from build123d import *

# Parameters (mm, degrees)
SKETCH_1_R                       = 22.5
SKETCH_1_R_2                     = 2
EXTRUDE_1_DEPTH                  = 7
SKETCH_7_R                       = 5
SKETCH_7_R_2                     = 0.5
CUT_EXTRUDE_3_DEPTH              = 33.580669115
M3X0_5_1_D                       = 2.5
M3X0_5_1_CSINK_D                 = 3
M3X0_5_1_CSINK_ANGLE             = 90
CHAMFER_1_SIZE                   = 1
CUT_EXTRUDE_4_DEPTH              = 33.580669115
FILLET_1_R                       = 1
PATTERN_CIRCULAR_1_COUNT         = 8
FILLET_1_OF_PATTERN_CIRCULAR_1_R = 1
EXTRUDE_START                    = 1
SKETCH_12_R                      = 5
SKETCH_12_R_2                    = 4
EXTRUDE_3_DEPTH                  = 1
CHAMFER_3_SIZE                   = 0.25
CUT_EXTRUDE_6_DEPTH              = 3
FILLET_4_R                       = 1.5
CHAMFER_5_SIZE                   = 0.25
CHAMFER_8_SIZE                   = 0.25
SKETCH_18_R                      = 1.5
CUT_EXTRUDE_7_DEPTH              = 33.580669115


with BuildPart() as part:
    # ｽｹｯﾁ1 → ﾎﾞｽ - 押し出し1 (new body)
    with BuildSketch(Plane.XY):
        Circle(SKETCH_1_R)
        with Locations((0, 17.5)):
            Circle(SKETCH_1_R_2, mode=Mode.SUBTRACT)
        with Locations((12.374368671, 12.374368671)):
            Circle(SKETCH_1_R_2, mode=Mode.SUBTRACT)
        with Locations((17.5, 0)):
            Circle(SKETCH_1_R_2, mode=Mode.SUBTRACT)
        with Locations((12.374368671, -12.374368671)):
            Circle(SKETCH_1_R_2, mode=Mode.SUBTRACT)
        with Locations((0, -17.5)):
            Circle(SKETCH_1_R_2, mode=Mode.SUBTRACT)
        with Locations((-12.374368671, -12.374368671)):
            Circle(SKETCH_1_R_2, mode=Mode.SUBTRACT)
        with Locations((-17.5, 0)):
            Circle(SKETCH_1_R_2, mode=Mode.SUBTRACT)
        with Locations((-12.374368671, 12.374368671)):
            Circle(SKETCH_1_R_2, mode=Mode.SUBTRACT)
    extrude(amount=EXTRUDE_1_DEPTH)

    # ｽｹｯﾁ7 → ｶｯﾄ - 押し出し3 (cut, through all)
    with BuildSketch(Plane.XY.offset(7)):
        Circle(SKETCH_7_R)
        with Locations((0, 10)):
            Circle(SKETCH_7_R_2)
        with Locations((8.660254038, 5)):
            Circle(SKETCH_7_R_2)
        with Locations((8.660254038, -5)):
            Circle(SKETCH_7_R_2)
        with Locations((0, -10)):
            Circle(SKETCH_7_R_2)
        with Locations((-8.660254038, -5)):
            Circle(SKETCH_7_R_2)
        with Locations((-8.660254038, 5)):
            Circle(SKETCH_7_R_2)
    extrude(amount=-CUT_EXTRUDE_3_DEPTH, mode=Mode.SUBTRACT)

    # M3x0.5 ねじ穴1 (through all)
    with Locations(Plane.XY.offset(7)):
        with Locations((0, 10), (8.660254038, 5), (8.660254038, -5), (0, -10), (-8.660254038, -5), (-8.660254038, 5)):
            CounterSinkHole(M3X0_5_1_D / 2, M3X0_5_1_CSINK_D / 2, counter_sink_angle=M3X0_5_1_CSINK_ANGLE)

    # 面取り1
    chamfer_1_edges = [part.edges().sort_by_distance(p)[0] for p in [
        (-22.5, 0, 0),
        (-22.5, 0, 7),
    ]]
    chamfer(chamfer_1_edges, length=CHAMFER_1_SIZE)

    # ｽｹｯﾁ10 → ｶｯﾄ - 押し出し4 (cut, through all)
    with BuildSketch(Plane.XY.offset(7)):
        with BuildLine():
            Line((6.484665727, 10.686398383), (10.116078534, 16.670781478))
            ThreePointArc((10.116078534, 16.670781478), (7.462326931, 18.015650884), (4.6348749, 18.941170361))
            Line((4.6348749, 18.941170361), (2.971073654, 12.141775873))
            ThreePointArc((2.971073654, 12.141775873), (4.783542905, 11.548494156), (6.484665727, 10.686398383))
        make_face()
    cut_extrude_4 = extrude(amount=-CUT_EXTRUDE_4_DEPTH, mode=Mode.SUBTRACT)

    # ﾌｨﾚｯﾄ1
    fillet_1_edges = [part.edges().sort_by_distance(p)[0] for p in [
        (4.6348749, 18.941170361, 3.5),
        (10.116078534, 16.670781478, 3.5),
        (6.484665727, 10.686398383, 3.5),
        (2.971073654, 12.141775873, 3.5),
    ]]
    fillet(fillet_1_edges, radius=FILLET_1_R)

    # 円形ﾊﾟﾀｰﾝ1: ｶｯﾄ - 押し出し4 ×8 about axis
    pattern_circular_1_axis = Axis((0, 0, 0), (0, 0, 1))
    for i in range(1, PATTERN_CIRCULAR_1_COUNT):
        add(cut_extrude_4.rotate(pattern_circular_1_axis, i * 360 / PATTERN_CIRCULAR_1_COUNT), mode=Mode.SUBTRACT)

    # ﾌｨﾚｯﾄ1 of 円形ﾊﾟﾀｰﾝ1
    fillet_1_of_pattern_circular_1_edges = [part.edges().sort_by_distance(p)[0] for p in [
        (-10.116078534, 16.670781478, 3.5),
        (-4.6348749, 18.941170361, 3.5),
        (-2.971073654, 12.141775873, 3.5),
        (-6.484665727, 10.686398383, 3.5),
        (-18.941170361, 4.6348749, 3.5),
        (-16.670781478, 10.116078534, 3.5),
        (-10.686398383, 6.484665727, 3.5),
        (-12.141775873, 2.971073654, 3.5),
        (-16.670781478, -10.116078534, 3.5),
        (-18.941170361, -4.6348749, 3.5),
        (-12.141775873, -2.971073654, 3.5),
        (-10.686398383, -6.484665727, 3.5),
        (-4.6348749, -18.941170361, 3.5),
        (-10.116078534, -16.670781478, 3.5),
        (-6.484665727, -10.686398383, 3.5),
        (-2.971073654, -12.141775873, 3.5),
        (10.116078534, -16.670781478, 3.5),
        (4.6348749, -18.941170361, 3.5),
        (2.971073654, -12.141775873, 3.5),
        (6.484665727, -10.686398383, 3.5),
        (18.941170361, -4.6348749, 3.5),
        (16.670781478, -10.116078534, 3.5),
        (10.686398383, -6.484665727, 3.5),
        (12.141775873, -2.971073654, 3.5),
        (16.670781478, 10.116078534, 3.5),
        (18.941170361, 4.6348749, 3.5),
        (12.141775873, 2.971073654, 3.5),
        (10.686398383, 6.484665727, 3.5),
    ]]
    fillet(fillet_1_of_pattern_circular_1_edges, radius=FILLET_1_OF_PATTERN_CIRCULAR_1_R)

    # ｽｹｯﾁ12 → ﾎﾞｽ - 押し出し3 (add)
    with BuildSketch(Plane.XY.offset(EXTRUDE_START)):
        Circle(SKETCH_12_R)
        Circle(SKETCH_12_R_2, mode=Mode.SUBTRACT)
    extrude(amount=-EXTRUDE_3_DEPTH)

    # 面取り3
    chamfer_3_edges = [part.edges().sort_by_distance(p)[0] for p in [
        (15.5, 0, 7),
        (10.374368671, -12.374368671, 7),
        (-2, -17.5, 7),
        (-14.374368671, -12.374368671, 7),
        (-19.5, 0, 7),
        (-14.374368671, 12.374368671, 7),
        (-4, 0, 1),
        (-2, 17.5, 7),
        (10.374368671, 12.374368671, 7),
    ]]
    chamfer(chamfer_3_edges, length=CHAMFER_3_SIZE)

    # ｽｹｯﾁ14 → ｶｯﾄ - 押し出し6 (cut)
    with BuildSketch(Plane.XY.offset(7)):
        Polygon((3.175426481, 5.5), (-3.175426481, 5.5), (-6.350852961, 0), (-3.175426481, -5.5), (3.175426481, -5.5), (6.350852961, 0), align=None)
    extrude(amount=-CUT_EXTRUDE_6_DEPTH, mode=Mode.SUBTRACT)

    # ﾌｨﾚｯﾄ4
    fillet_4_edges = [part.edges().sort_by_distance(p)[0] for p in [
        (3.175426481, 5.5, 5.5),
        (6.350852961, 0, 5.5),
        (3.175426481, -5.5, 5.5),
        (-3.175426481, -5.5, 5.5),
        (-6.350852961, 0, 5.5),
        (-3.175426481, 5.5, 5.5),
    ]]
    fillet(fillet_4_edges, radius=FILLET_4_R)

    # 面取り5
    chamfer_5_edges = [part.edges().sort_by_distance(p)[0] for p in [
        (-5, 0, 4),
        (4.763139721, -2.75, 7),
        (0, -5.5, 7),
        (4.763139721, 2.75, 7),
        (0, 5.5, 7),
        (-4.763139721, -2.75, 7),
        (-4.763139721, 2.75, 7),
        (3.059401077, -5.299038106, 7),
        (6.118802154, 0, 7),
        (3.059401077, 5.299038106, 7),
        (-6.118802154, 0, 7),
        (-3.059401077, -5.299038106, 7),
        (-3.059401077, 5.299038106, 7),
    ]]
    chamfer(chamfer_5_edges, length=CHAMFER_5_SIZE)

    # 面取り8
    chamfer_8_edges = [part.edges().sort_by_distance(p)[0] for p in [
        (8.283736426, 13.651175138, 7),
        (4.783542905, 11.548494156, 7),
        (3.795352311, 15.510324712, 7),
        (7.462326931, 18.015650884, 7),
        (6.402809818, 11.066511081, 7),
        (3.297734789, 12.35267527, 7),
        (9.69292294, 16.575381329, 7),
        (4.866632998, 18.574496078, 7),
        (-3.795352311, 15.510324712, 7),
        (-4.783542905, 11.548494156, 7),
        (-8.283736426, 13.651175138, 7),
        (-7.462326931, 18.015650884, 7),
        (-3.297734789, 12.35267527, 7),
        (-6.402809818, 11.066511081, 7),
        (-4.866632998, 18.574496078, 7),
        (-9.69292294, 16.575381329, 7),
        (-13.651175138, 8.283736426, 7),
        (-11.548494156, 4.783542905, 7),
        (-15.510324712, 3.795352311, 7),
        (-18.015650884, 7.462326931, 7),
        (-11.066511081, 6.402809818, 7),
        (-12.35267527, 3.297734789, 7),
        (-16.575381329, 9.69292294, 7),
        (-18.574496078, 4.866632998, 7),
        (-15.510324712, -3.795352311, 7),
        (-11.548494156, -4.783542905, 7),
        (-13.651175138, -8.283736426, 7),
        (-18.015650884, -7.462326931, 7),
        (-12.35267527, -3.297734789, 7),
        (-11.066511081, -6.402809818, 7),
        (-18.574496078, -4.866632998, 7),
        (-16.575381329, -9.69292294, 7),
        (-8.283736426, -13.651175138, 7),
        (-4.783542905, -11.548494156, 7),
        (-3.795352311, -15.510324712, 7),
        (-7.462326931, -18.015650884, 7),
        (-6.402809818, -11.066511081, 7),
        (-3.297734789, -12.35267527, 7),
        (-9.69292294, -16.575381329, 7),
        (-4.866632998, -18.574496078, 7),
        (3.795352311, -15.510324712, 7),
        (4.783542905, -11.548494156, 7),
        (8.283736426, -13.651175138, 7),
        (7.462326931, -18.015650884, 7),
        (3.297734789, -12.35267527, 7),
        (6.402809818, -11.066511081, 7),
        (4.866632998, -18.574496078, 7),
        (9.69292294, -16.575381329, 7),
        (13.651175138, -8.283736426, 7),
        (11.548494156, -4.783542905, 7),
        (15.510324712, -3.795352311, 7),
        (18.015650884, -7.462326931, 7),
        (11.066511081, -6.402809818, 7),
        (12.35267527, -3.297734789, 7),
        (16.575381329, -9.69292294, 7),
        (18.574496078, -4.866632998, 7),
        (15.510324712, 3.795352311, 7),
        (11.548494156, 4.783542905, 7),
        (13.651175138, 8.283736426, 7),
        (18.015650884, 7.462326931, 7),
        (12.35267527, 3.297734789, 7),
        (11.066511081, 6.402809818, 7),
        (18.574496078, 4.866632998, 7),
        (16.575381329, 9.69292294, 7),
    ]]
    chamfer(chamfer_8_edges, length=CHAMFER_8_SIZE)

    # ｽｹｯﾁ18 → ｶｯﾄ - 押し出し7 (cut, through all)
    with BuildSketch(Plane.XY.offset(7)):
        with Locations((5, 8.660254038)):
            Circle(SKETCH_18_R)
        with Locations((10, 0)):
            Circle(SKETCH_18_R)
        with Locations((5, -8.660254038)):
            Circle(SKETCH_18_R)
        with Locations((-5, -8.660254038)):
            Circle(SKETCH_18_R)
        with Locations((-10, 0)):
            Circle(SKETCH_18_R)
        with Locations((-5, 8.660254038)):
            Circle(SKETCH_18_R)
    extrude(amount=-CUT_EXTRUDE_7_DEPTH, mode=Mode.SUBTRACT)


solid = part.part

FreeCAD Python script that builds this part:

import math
import FreeCAD as App
import Part
import Sketcher

V = App.Vector
Q = App.Units.Quantity


def edges_at(feature, points):
    """Names of the edges that pass closest to the given points."""
    edges = feature.Shape.Edges
    near = lambda p: min(range(len(edges)), key=lambda i: edges[i].distToShape(Part.Vertex(*p))[0])
    return sorted({f"Edge{near(p) + 1}" for p in points})


def add_polygon(sketch, points):
    """Adds a closed chain of lines whose ends are joined by coincident constraints."""
    first, n = sketch.GeometryCount, len(points)
    for a, b in zip(points, points[1:] + points[:1]):
        sketch.addGeometry(Part.LineSegment(App.Vector(*a, 0), App.Vector(*b, 0)), False)
    for i in range(n):
        sketch.addConstraint(Sketcher.Constraint("Coincident", first + i, 2, first + (i + 1) % n, 1))

doc = App.newDocument("Part")
body = doc.addObject("PartDesign::Body", "Body")

# Sketch on XY plane
sketch1 = body.newObject("Sketcher::SketchObject", "Sketch")
sketch1.AttachmentSupport = (doc.getObject("XY_Plane"), [""])
sketch1.MapMode = "FlatFace"
sketch1.addGeometry([
    Part.Circle(V(0, 0, 0), V(0, 0, 1), 22.5),  # 0
    Part.Circle(V(-12.4, -12.4, 0), V(0, 0, 1), 2),  # 1
    Part.Circle(V(0, -17.5, 0), V(0, 0, 1), 2),  # 2
    Part.Circle(V(12.4, -12.4, 0), V(0, 0, 1), 2),  # 3
    Part.Circle(V(-17.5, 0, 0), V(0, 0, 1), 2),  # 4
    Part.Circle(V(-12.4, 12.4, 0), V(0, 0, 1), 2),  # 5
    Part.Circle(V(17.5, 0, 0), V(0, 0, 1), 2),  # 6
    Part.Circle(V(0, 17.5, 0), V(0, 0, 1), 2),  # 7
    Part.Circle(V(12.4, 12.4, 0), V(0, 0, 1), 2),  # 8
], False)
sketch1.addConstraint([
    Sketcher.Constraint("Coincident", 0, 3, -1, 1),
    Sketcher.Constraint("Equal", 1, 2),
    Sketcher.Constraint("Equal", 2, 3),
    Sketcher.Constraint("Equal", 3, 4),
    Sketcher.Constraint("Equal", 4, 5),
    Sketcher.Constraint("Equal", 5, 6),
    Sketcher.Constraint("Equal", 6, 7),
    Sketcher.Constraint("Equal", 7, 8),
    Sketcher.Constraint("Symmetric", 3, 3, 5, 3, -1, 1),
    Sketcher.Constraint("Symmetric", 4, 3, 6, 3, -1, 1),
    Sketcher.Constraint("Symmetric", 2, 3, 7, 3, -1, 1),
    Sketcher.Constraint("Symmetric", 1, 3, 8, 3, -1, 1),
    Sketcher.Constraint("Symmetric", 1, 3, 3, 3, -2),
    Sketcher.Constraint("PointOnObject", 2, 3, -2),
    Sketcher.Constraint("PointOnObject", 4, 3, -1),
    Sketcher.Constraint("Diameter", 0, Q("45 mm")),
    Sketcher.Constraint("Diameter", 1, Q("4 mm")),
    Sketcher.Constraint("DistanceY", 2, 3, -1, 1, Q("17.5 mm")),
    Sketcher.Constraint("DistanceX", 4, 3, -1, 1, Q("17.5 mm")),
    Sketcher.Constraint("DistanceX", 1, 3, -1, 1, Q("12.374369 mm")),
    Sketcher.Constraint("DistanceY", 1, 3, -1, 1, Q("12.374369 mm")),
])
pad1 = body.newObject("PartDesign::Pad", "Pad")
pad1.Profile = sketch1
pad1.Length = 7

# Sketch on XY plane
sketch2 = body.newObject("Sketcher::SketchObject", "Sketch001")
sketch2.AttachmentSupport = (doc.getObject("XY_Plane"), [""])
sketch2.MapMode = "FlatFace"
sketch2.AttachmentOffset = App.Placement(V(0, 0, 7), App.Rotation())
sketch2.addGeometry([
    Part.Circle(V(0, 0, 0), V(0, 0, 1), 5),  # 0
    Part.Circle(V(0, 10, 0), V(0, 0, 1), 0.5),  # 1
    Part.Circle(V(8.7, 5, 0), V(0, 0, 1), 0.5),  # 2
    Part.Circle(V(8.7, -5, 0), V(0, 0, 1), 0.5),  # 3
    Part.Circle(V(0, -10, 0), V(0, 0, 1), 0.5),  # 4
    Part.Circle(V(-8.7, -5, 0), V(0, 0, 1), 0.5),  # 5
    Part.Circle(V(-8.7, 5, 0), V(0, 0, 1), 0.5),  # 6
], False)
sketch2.addConstraint([
    Sketcher.Constraint("Coincident", 0, 3, -1, 1),
    Sketcher.Constraint("Equal", 1, 2),
    Sketcher.Constraint("Equal", 2, 3),
    Sketcher.Constraint("Equal", 3, 4),
    Sketcher.Constraint("Equal", 4, 5),
    Sketcher.Constraint("Equal", 5, 6),
    Sketcher.Constraint("Symmetric", 1, 3, 4, 3, -1, 1),
    Sketcher.Constraint("Symmetric", 2, 3, 5, 3, -1, 1),
    Sketcher.Constraint("Symmetric", 3, 3, 6, 3, -1, 1),
    Sketcher.Constraint("Symmetric", 3, 3, 5, 3, -2),
    Sketcher.Constraint("PointOnObject", 1, 3, -2),
    Sketcher.Constraint("Diameter", 0, Q("10 mm")),
    Sketcher.Constraint("Diameter", 1, Q("1 mm")),
    Sketcher.Constraint("DistanceY", -1, 1, 1, 3, Q("10 mm")),
    Sketcher.Constraint("DistanceY", -1, 1, 2, 3, Q("5 mm")),
    Sketcher.Constraint("DistanceX", 5, 3, 3, 3, Q("17.320508 mm")),
])
pocket1 = body.newObject("PartDesign::Pocket", "Pocket")
pocket1.Profile = sketch2
pocket1.Type = "ThroughAll"

# Sketch on XY plane
sketch3 = body.newObject("Sketcher::SketchObject", "Sketch002")
sketch3.AttachmentSupport = (doc.getObject("XY_Plane"), [""])
sketch3.MapMode = "FlatFace"
sketch3.AttachmentOffset = App.Placement(V(0, 0, 7), App.Rotation())
sketch3.addGeometry([
    Part.Circle(V(0, 10, 0), V(0, 0, 1), 1.2),  # 0
    Part.Circle(V(8.7, 5, 0), V(0, 0, 1), 1.2),  # 1
    Part.Circle(V(8.7, -5, 0), V(0, 0, 1), 1.2),  # 2
    Part.Circle(V(0, -10, 0), V(0, 0, 1), 1.2),  # 3
    Part.Circle(V(-8.7, -5, 0), V(0, 0, 1), 1.2),  # 4
    Part.Circle(V(-8.7, 5, 0), V(0, 0, 1), 1.2),  # 5
], False)
sketch3.addConstraint([
    Sketcher.Constraint("Equal", 0, 1),
    Sketcher.Constraint("Equal", 1, 2),
    Sketcher.Constraint("Equal", 2, 3),
    Sketcher.Constraint("Equal", 3, 4),
    Sketcher.Constraint("Equal", 4, 5),
    Sketcher.Constraint("Symmetric", 0, 3, 3, 3, -1, 1),
    Sketcher.Constraint("Symmetric", 1, 3, 4, 3, -1, 1),
    Sketcher.Constraint("Symmetric", 2, 3, 5, 3, -1, 1),
    Sketcher.Constraint("Symmetric", 2, 3, 4, 3, -2),
    Sketcher.Constraint("PointOnObject", 0, 3, -2),
    Sketcher.Constraint("Diameter", 0, Q("2.5 mm")),
    Sketcher.Constraint("DistanceY", -1, 1, 0, 3, Q("10 mm")),
    Sketcher.Constraint("DistanceY", -1, 1, 1, 3, Q("5 mm")),
    Sketcher.Constraint("DistanceX", 4, 3, 2, 3, Q("17.320508 mm")),
])
doc.recompute()
hole = body.newObject("PartDesign::Hole", "Hole")
hole.Profile = sketch3
hole.ThreadType = "None"
hole.Diameter = 2.5
hole.DepthType = "ThroughAll"
hole.HoleCutType = "Countersink"
hole.HoleCutDiameter = 3
hole.HoleCutCountersinkAngle = 90
doc.recompute()

chamfer = body.newObject("PartDesign::Chamfer", "Chamfer")
chamfer.Base = (hole, edges_at(hole, [(-22.5, 0, 0), (-22.5, 0, 7)]))
chamfer.Size = 1

# Sketch on XY plane
sketch4 = body.newObject("Sketcher::SketchObject", "Sketch003")
sketch4.AttachmentSupport = (doc.getObject("XY_Plane"), [""])
sketch4.MapMode = "FlatFace"
sketch4.AttachmentOffset = App.Placement(V(0, 0, 7), App.Rotation())
sketch4.addGeometry([
    Part.LineSegment(V(6.5, 10.7, 0), V(10.1, 16.7, 0)),
    Part.ArcOfCircle(Part.Circle(V(0, 0, 0), V(0, 0, 1), 19.5), math.radians(58.75), math.radians(76.25)),
    Part.LineSegment(V(4.6, 18.9, 0), V(3, 12.1, 0)),
    Part.ArcOfCircle(Part.Circle(V(0, 0, 0), V(0, 0, 1), 12.5), math.radians(58.75), math.radians(76.25)),
], False)
sketch4.addConstraint([
    Sketcher.Constraint("Coincident", 0, 2, 1, 1),
    Sketcher.Constraint("Coincident", 1, 2, 2, 1),
    Sketcher.Constraint("Coincident", 2, 2, 3, 2),
    Sketcher.Constraint("Coincident", 3, 1, 0, 1),
    Sketcher.Constraint("Coincident", 1, 3, -1, 1),
    Sketcher.Constraint("Coincident", 3, 3, -1, 1),
    Sketcher.Constraint("Radius", 1, Q("19.5 mm")),
    Sketcher.Constraint("Radius", 3, Q("12.5 mm")),
    Sketcher.Constraint("Angle", 0, Q("58.75 deg")),
    Sketcher.Constraint("Angle", 2, Q("-103.75 deg")),
    Sketcher.Constraint("DistanceY", -1, 1, 3, 1, Q("10.686398 mm")),
    Sketcher.Constraint("DistanceY", -1, 1, 1, 2, Q("18.94117 mm")),
])
pocket2 = body.newObject("PartDesign::Pocket", "Pocket001")
pocket2.Profile = sketch4
pocket2.Type = "ThroughAll"
doc.recompute()

fillet = body.newObject("PartDesign::Fillet", "Fillet")
fillet.Base = (pocket2, edges_at(pocket2, [
    (4.635, 18.941, 3.5),
    (10.116, 16.671, 3.5),
    (6.485, 10.686, 3.5),
    (2.971, 12.142, 3.5),
]))
fillet.Radius = 1
doc.recompute()

polarpattern = body.newObject("PartDesign::PolarPattern", "PolarPattern")
polarpattern.Originals = [pocket2]
polarpattern.Axis = (doc.getObject("Z_Axis"), [""])
polarpattern.Angle = 360
polarpattern.Occurrences = 8
body.Tip = polarpattern
doc.recompute()

fillet2 = body.newObject("PartDesign::Fillet", "Fillet001")
fillet2.Base = (polarpattern, edges_at(polarpattern, [
    (-10.116, 16.671, 3.5),
    (-4.635, 18.941, 3.5),
    (-2.971, 12.142, 3.5),
    (-6.485, 10.686, 3.5),
    (-18.941, 4.635, 3.5),
    (-16.671, 10.116, 3.5),
    (-10.686, 6.485, 3.5),
    (-12.142, 2.971, 3.5),
    (-16.671, -10.116, 3.5),
    (-18.941, -4.635, 3.5),
    (-12.142, -2.971, 3.5),
    (-10.686, -6.485, 3.5),
    (-4.635, -18.941, 3.5),
    (-10.116, -16.671, 3.5),
    (-6.485, -10.686, 3.5),
    (-2.971, -12.142, 3.5),
    (10.116, -16.671, 3.5),
    (4.635, -18.941, 3.5),
    (2.971, -12.142, 3.5),
    (6.485, -10.686, 3.5),
    (18.941, -4.635, 3.5),
    (16.671, -10.116, 3.5),
    (10.686, -6.485, 3.5),
    (12.142, -2.971, 3.5),
    (16.671, 10.116, 3.5),
    (18.941, 4.635, 3.5),
    (12.142, 2.971, 3.5),
    (10.686, 6.485, 3.5),
]))
fillet2.Radius = 1

# Sketch on XY plane
sketch5 = body.newObject("Sketcher::SketchObject", "Sketch004")
sketch5.AttachmentSupport = (doc.getObject("XY_Plane"), [""])
sketch5.MapMode = "FlatFace"
sketch5.AttachmentOffset = App.Placement(V(0, 0, 1), App.Rotation())
sketch5.addGeometry([
    Part.Circle(V(0, 0, 0), V(0, 0, 1), 5),
    Part.Circle(V(0, 0, 0), V(0, 0, 1), 4),
], False)
sketch5.addConstraint([
    Sketcher.Constraint("Coincident", 0, 3, -1, 1),
    Sketcher.Constraint("Coincident", 1, 3, -1, 1),
    Sketcher.Constraint("Diameter", 0, Q("10 mm")),
    Sketcher.Constraint("Diameter", 1, Q("8 mm")),
])
pad2 = body.newObject("PartDesign::Pad", "Pad001")
pad2.Profile = sketch5
pad2.Length = 1
pad2.Reversed = True
doc.recompute()

chamfer2 = body.newObject("PartDesign::Chamfer", "Chamfer001")
chamfer2.Base = (pad2, edges_at(pad2, [
    (15.5, 0, 7),
    (10.374, -12.374, 7),
    (-2, -17.5, 7),
    (-14.374, -12.374, 7),
    (-19.5, 0, 7),
    (-14.374, 12.374, 7),
    (-4, 0, 1),
    (-2, 17.5, 7),
    (10.374, 12.374, 7),
]))
chamfer2.Size = 0.25

# Sketch on XY plane
sketch6 = body.newObject("Sketcher::SketchObject", "Sketch005")
sketch6.AttachmentSupport = (doc.getObject("XY_Plane"), [""])
sketch6.MapMode = "FlatFace"
sketch6.AttachmentOffset = App.Placement(V(0, 0, 7), App.Rotation())
add_polygon(sketch6, [(3, 6), (-3, 6), (-6, 0), (-3, -6), (3, -6), (6, 0)])  # lines 0-5
sketch6.addConstraint([
    Sketcher.Constraint("Horizontal", 0),
    Sketcher.Constraint("Horizontal", 3),
    Sketcher.Constraint("Symmetric", 0, 2, 3, 2, -1, 1),
    Sketcher.Constraint("Symmetric", 1, 2, 4, 2, -1, 1),
    Sketcher.Constraint("PointOnObject", 1, 2, -1),
    Sketcher.Constraint("Parallel", 2, 5),
    Sketcher.Constraint("Vertical", 0, 2, 2, 2),
    Sketcher.Constraint("Angle", 1, Q("-120 deg")),
    Sketcher.Constraint("DistanceY", 2, 2, 0, 2, Q("11 mm")),
    Sketcher.Constraint("DistanceX", 0, 2, 0, 1, Q("6.350853 mm")),
])
pocket3 = body.newObject("PartDesign::Pocket", "Pocket002")
pocket3.Profile = sketch6
pocket3.Length = 3
doc.recompute()

fillet3 = body.newObject("PartDesign::Fillet", "Fillet002")
fillet3.Base = (pocket3, edges_at(pocket3, [
    (3.175, 5.5, 5.5),
    (6.351, 0, 5.5),
    (3.175, -5.5, 5.5),
    (-3.175, -5.5, 5.5),
    (-6.351, 0, 5.5),
    (-3.175, 5.5, 5.5),
]))
fillet3.Radius = 1.5
doc.recompute()

chamfer3 = body.newObject("PartDesign::Chamfer", "Chamfer002")
chamfer3.Base = (fillet3, edges_at(fillet3, [
    (-5, 0, 4),
    (4.763, -2.75, 7),
    (0, -5.5, 7),
    (4.763, 2.75, 7),
    (0, 5.5, 7),
    (-4.763, -2.75, 7),
    (-4.763, 2.75, 7),
    (3.059, -5.299, 7),
    (6.119, 0, 7),
    (3.059, 5.299, 7),
    (-6.119, 0, 7),
    (-3.059, -5.299, 7),
    (-3.059, 5.299, 7),
]))
chamfer3.Size = 0.25
doc.recompute()

chamfer4 = body.newObject("PartDesign::Chamfer", "Chamfer003")
chamfer4.Base = (chamfer3, edges_at(chamfer3, [
    (8.284, 13.651, 7),
    (4.784, 11.548, 7),
    (3.795, 15.51, 7),
    (7.462, 18.016, 7),
    (6.403, 11.067, 7),
    (3.298, 12.353, 7),
    (9.693, 16.575, 7),
    (4.867, 18.574, 7),
    (-3.795, 15.51, 7),
    (-4.784, 11.548, 7),
    (-8.284, 13.651, 7),
    (-7.462, 18.016, 7),
    (-3.298, 12.353, 7),
    (-6.403, 11.067, 7),
    (-4.867, 18.574, 7),
    (-9.693, 16.575, 7),
    (-13.651, 8.284, 7),
    (-11.548, 4.784, 7),
    (-15.51, 3.795, 7),
    (-18.016, 7.462, 7),
    (-11.067, 6.403, 7),
    (-12.353, 3.298, 7),
    (-16.575, 9.693, 7),
    (-18.574, 4.867, 7),
    (-15.51, -3.795, 7),
    (-11.548, -4.784, 7),
    (-13.651, -8.284, 7),
    (-18.016, -7.462, 7),
    (-12.353, -3.298, 7),
    (-11.067, -6.403, 7),
    (-18.574, -4.867, 7),
    (-16.575, -9.693, 7),
    (-8.284, -13.651, 7),
    (-4.784, -11.548, 7),
    (-3.795, -15.51, 7),
    (-7.462, -18.016, 7),
    (-6.403, -11.067, 7),
    (-3.298, -12.353, 7),
    (-9.693, -16.575, 7),
    (-4.867, -18.574, 7),
    (3.795, -15.51, 7),
    (4.784, -11.548, 7),
    (8.284, -13.651, 7),
    (7.462, -18.016, 7),
    (3.298, -12.353, 7),
    (6.403, -11.067, 7),
    (4.867, -18.574, 7),
    (9.693, -16.575, 7),
    (13.651, -8.284, 7),
    (11.548, -4.784, 7),
    (15.51, -3.795, 7),
    (18.016, -7.462, 7),
    (11.067, -6.403, 7),
    (12.353, -3.298, 7),
    (16.575, -9.693, 7),
    (18.574, -4.867, 7),
    (15.51, 3.795, 7),
    (11.548, 4.784, 7),
    (13.651, 8.284, 7),
    (18.016, 7.462, 7),
    (12.353, 3.298, 7),
    (11.067, 6.403, 7),
    (18.574, 4.867, 7),
    (16.575, 9.693, 7),
]))
chamfer4.Size = 0.25

# Sketch on XY plane
sketch7 = body.newObject("Sketcher::SketchObject", "Sketch006")
sketch7.AttachmentSupport = (doc.getObject("XY_Plane"), [""])
sketch7.MapMode = "FlatFace"
sketch7.AttachmentOffset = App.Placement(V(0, 0, 7), App.Rotation())
sketch7.addGeometry([
    Part.Circle(V(5, 8.7, 0), V(0, 0, 1), 1.5),  # 0
    Part.Circle(V(10, 0, 0), V(0, 0, 1), 1.5),  # 1
    Part.Circle(V(5, -8.7, 0), V(0, 0, 1), 1.5),  # 2
    Part.Circle(V(-5, -8.7, 0), V(0, 0, 1), 1.5),  # 3
    Part.Circle(V(-10, 0, 0), V(0, 0, 1), 1.5),  # 4
    Part.Circle(V(-5, 8.7, 0), V(0, 0, 1), 1.5),  # 5
], False)
sketch7.addConstraint([
    Sketcher.Constraint("Equal", 0, 1),
    Sketcher.Constraint("Equal", 1, 2),
    Sketcher.Constraint("Equal", 2, 3),
    Sketcher.Constraint("Equal", 3, 4),
    Sketcher.Constraint("Equal", 4, 5),
    Sketcher.Constraint("Symmetric", 0, 3, 3, 3, -1, 1),
    Sketcher.Constraint("Symmetric", 1, 3, 4, 3, -1, 1),
    Sketcher.Constraint("Symmetric", 2, 3, 5, 3, -1, 1),
    Sketcher.Constraint("Symmetric", 2, 3, 3, 3, -2),
    Sketcher.Constraint("PointOnObject", 1, 3, -1),
    Sketcher.Constraint("Diameter", 0, Q("3 mm")),
    Sketcher.Constraint("DistanceX", -1, 1, 0, 3, Q("5 mm")),
    Sketcher.Constraint("DistanceX", -1, 1, 1, 3, Q("10 mm")),
    Sketcher.Constraint("DistanceY", 2, 3, 0, 3, Q("17.320508 mm")),
])
pocket4 = body.newObject("PartDesign::Pocket", "Pocket003")
pocket4.Profile = sketch7
pocket4.Type = "ThroughAll"

doc.recompute()
